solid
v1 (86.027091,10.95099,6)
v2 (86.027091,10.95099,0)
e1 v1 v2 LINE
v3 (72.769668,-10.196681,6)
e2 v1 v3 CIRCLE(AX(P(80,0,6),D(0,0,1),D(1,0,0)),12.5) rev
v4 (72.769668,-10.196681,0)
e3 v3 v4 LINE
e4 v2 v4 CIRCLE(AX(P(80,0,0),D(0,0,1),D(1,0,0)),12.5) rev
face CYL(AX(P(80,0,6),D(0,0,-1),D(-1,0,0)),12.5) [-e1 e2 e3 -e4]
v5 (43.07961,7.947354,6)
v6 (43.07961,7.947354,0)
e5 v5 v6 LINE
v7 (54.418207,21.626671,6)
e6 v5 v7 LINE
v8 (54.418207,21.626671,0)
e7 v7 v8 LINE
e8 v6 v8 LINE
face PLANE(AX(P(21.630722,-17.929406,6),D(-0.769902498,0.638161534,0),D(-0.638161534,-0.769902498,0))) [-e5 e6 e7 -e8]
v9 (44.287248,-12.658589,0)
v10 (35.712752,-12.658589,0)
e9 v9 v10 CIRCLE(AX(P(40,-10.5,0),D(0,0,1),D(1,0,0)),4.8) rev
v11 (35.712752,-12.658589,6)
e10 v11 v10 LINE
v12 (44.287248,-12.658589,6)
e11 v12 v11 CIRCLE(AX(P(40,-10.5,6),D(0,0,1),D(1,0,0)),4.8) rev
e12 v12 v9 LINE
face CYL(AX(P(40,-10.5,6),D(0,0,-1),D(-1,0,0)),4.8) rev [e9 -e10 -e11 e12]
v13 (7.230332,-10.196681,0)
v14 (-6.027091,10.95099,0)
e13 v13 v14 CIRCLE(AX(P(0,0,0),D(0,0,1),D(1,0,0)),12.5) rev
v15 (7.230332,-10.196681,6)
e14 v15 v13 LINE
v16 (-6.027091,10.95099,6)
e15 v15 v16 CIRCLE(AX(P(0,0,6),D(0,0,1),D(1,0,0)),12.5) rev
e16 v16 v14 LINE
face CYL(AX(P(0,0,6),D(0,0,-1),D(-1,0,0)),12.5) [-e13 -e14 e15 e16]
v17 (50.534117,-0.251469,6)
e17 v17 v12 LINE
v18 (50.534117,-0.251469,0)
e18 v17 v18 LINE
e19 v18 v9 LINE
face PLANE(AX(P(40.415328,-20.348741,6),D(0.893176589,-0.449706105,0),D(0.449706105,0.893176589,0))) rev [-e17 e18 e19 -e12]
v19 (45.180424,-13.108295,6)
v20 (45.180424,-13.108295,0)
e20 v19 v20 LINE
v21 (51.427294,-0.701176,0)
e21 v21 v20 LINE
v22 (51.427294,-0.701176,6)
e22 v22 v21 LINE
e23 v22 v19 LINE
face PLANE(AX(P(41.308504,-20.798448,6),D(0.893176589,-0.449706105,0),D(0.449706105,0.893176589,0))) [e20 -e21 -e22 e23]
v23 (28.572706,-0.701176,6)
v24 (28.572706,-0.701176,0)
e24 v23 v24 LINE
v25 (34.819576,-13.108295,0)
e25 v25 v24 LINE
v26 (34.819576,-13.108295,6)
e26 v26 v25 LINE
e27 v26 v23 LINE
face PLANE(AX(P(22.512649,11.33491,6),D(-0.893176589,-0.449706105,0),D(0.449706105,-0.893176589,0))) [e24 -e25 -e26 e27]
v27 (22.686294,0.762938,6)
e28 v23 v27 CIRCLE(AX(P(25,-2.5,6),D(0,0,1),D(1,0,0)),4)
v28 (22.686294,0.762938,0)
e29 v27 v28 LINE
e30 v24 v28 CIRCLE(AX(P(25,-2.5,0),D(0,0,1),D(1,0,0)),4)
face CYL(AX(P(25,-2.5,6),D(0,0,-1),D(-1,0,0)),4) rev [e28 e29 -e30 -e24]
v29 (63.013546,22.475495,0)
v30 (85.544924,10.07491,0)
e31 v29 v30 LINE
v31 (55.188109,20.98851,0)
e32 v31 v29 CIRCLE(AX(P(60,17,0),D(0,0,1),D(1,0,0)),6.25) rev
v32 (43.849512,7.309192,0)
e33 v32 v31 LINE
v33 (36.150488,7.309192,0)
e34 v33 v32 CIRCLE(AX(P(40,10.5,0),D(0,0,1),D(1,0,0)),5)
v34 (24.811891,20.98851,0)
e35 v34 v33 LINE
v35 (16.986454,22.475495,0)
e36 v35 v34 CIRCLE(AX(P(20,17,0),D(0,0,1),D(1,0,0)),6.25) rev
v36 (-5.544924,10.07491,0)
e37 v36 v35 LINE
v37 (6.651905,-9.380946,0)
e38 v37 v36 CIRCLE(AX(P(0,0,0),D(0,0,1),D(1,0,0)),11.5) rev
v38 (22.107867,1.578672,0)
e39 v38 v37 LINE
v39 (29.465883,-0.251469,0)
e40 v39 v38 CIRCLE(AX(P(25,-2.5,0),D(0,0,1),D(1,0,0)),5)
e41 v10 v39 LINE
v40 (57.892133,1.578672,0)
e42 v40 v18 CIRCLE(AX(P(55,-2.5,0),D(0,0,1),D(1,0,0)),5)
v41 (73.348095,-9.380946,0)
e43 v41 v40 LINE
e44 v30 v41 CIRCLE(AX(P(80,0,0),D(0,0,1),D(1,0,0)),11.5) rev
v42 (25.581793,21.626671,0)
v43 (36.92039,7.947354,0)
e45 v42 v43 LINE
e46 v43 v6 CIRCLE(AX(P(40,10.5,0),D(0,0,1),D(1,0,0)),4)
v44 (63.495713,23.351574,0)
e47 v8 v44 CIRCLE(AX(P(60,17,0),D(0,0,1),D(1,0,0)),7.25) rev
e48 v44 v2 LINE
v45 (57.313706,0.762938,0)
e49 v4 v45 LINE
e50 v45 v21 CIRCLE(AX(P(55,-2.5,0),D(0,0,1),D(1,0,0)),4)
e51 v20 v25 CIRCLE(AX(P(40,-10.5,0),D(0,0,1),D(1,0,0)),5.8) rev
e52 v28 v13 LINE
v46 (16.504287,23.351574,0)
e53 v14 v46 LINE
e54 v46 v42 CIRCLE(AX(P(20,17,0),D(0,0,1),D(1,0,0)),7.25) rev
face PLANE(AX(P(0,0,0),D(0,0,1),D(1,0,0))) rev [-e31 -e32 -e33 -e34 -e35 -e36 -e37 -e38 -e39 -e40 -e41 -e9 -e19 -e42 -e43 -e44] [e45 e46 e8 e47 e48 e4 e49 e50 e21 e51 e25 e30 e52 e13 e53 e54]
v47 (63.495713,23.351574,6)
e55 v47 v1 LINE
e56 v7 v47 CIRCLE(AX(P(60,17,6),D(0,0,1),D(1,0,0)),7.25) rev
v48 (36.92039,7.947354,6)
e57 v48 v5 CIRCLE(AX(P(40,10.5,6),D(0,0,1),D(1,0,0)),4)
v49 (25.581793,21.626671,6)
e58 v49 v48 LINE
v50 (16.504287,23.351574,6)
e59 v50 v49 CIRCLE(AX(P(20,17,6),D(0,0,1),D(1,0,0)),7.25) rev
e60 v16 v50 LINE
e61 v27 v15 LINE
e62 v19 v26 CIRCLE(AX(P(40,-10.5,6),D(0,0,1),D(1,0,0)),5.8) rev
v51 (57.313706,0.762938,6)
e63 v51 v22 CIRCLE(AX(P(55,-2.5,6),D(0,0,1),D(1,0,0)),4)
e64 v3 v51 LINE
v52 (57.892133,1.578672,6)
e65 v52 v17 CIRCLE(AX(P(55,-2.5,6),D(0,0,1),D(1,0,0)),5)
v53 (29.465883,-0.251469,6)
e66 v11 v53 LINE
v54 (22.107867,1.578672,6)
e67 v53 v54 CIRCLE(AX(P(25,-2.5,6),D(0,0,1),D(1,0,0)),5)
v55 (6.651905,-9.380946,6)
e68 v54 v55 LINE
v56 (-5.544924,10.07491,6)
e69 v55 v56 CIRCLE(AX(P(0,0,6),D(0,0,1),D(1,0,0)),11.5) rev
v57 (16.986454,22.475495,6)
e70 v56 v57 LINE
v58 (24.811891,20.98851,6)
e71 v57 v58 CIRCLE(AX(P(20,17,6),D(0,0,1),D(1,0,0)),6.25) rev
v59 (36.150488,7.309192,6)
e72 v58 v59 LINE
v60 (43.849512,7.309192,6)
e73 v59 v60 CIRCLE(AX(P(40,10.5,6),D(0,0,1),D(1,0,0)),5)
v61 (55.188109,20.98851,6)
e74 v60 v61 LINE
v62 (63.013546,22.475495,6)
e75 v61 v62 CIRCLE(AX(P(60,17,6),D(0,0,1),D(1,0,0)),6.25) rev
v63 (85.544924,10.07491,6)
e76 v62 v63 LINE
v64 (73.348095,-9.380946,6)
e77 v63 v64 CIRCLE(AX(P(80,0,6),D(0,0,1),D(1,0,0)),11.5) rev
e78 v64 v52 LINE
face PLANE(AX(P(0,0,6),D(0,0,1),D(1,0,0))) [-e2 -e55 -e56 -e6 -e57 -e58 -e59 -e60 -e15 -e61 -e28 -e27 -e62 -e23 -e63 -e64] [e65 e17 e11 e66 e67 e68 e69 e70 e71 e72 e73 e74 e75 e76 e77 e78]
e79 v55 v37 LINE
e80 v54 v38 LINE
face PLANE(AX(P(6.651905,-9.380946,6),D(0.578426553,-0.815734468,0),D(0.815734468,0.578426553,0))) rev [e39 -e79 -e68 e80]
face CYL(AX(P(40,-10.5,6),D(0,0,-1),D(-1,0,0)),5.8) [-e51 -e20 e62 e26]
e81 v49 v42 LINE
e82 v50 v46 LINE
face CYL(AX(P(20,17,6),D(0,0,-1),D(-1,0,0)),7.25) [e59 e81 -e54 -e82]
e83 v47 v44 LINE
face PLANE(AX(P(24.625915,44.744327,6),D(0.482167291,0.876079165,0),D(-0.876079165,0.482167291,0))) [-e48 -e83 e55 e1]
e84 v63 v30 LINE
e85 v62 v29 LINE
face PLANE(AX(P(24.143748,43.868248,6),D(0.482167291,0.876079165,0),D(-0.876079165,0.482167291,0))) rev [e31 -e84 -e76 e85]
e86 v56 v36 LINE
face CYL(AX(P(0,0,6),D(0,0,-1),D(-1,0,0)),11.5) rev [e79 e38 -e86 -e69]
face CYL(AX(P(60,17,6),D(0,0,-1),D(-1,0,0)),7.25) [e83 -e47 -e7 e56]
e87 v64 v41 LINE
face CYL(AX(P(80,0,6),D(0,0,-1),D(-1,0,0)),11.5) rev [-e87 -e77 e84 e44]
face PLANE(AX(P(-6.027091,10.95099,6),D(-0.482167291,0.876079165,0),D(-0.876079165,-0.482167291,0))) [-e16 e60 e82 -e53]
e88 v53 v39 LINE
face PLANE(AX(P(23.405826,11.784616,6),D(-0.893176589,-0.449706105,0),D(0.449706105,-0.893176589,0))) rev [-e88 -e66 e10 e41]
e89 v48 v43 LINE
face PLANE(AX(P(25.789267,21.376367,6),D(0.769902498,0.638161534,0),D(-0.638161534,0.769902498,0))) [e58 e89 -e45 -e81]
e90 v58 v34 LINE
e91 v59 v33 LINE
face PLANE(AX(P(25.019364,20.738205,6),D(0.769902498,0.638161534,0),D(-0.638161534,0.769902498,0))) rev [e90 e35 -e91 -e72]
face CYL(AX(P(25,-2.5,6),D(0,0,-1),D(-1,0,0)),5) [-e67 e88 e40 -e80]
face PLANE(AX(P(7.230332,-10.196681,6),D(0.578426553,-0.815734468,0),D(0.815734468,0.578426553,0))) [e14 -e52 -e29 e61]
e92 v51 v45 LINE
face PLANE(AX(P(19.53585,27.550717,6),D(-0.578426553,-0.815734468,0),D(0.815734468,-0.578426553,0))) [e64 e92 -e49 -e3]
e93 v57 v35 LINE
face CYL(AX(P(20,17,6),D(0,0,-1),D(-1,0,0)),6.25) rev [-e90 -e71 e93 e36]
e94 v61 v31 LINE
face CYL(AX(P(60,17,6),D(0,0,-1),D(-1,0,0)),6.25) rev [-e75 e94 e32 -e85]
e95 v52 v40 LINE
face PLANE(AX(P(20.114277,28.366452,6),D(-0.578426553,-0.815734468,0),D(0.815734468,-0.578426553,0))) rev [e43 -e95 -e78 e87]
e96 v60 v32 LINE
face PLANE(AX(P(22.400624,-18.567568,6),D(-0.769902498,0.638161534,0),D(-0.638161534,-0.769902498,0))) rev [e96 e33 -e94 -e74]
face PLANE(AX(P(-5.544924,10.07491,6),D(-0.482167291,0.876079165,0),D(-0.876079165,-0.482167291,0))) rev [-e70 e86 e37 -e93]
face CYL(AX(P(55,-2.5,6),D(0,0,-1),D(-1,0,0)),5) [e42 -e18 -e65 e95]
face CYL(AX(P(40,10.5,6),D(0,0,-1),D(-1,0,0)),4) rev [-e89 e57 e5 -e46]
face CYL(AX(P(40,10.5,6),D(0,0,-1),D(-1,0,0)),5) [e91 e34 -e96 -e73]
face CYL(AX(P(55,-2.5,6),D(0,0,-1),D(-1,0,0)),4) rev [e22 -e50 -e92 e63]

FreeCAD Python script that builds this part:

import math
import FreeCAD as App
import Part
import Sketcher

doc = App.newDocument("Part")
body = doc.addObject("PartDesign::Body", "Body")

sketch1 = body.newObject("Sketcher::SketchObject", "Sketch")
sketch1.AttachmentSupport = (doc.getObject("XY_Plane"), [""])
sketch1.MapMode = "FlatFace"
sketch1.addGeometry(Part.ArcOfCircle(Part.Circle(App.Vector(0, 0, 0), App.Vector(0, 0, 1), 12.5), math.radians(119), math.radians(305)), False)
sketch1.addGeometry(Part.LineSegment(App.Vector(7.2, -10.2, 0), App.Vector(22.7, 0.8, 0)), False)
sketch1.addGeometry(Part.ArcOfCircle(Part.Circle(App.Vector(25, -2.5, 0), App.Vector(0, 0, 1), 4), math.radians(27), math.radians(125)), False)
sketch1.addGeometry(Part.LineSegment(App.Vector(28.6, -0.7, 0), App.Vector(34.8, -13.1, 0)), False)
sketch1.addGeometry(Part.ArcOfCircle(Part.Circle(App.Vector(40, -10.5, 0), App.Vector(0, 0, 1), 5.8), math.radians(-153), math.radians(-27)), False)
sketch1.addGeometry(Part.LineSegment(App.Vector(45.2, -13.1, 0), App.Vector(51.4, -0.7, 0)), False)
sketch1.addGeometry(Part.ArcOfCircle(Part.Circle(App.Vector(55, -2.5, 0), App.Vector(0, 0, 1), 4), math.radians(55), math.radians(153)), False)
sketch1.addGeometry(Part.LineSegment(App.Vector(57.3, 0.8, 0), App.Vector(72.8, -10.2, 0)), False)
sketch1.addGeometry(Part.ArcOfCircle(Part.Circle(App.Vector(80, 0, 0), App.Vector(0, 0, 1), 12.5), math.radians(-125), math.radians(61)), False)
sketch1.addGeometry(Part.LineSegment(App.Vector(86, 11, 0), App.Vector(63.5, 23.4, 0)), False)
sketch1.addGeometry(Part.ArcOfCircle(Part.Circle(App.Vector(60, 17, 0), App.Vector(0, 0, 1), 7.2), math.radians(61), math.radians(140)), False)
sketch1.addGeometry(Part.LineSegment(App.Vector(54.4, 21.6, 0), App.Vector(43.1, 7.9, 0)), False)
sketch1.addGeometry(Part.ArcOfCircle(Part.Circle(App.Vector(40, 10.5, 0), App.Vector(0, 0, 1), 4), math.radians(-140), math.radians(-40)), False)
sketch1.addGeometry(Part.LineSegment(App.Vector(36.9, 7.9, 0), App.Vector(25.6, 21.6, 0)), False)
sketch1.addGeometry(Part.ArcOfCircle(Part.Circle(App.Vector(20, 17, 0), App.Vector(0, 0, 1), 7.2), math.radians(40), math.radians(119)), False)
sketch1.addGeometry(Part.LineSegment(App.Vector(16.5, 23.4, 0), App.Vector(-6, 11, 0)), False)
sketch1.addGeometry(Part.LineSegment(App.Vector(35.7, -12.7, 0), App.Vector(29.5, -0.3, 0)), False)
sketch1.addGeometry(Part.ArcOfCircle(Part.Circle(App.Vector(25, -2.5, 0), App.Vector(0, 0, 1), 5), math.radians(27), math.radians(125)), False)
sketch1.addGeometry(Part.LineSegment(App.Vector(22.1, 1.6, 0), App.Vector(6.7, -9.4, 0)), False)
sketch1.addGeometry(Part.ArcOfCircle(Part.Circle(App.Vector(0, 0, 0), App.Vector(0, 0, 1), 11.5), math.radians(119), math.radians(305)), False)
sketch1.addGeometry(Part.LineSegment(App.Vector(-5.5, 10.1, 0), App.Vector(17, 22.5, 0)), False)
sketch1.addGeometry(Part.ArcOfCircle(Part.Circle(App.Vector(20, 17, 0), App.Vector(0, 0, 1), 6.2), math.radians(40), math.radians(119)), False)
sketch1.addGeometry(Part.LineSegment(App.Vector(24.8, 21, 0), App.Vector(36.2, 7.3, 0)), False)
sketch1.addGeometry(Part.ArcOfCircle(Part.Circle(App.Vector(40, 10.5, 0), App.Vector(0, 0, 1), 5), math.radians(-140), math.radians(-40)), False)
sketch1.addGeometry(Part.LineSegment(App.Vector(43.8, 7.3, 0), App.Vector(55.2, 21, 0)), False)
sketch1.addGeometry(Part.ArcOfCircle(Part.Circle(App.Vector(60, 17, 0), App.Vector(0, 0, 1), 6.2), math.radians(61), math.radians(140)), False)
sketch1.addGeometry(Part.LineSegment(App.Vector(63, 22.5, 0), App.Vector(85.5, 10.1, 0)), False)
sketch1.addGeometry(Part.ArcOfCircle(Part.Circle(App.Vector(80, 0, 0), App.Vector(0, 0, 1), 11.5), math.radians(-125), math.radians(61)), False)
sketch1.addGeometry(Part.LineSegment(App.Vector(73.3, -9.4, 0), App.Vector(57.9, 1.6, 0)), False)
sketch1.addGeometry(Part.ArcOfCircle(Part.Circle(App.Vector(55, -2.5, 0), App.Vector(0, 0, 1), 5), math.radians(55), math.radians(153)), False)
sketch1.addGeometry(Part.LineSegment(App.Vector(50.5, -0.3, 0), App.Vector(44.3, -12.7, 0)), False)
sketch1.addGeometry(Part.ArcOfCircle(Part.Circle(App.Vector(40, -10.5, 0), App.Vector(0, 0, 1), 4.8), math.radians(-153), math.radians(-27)), False)
sketch1.addConstraint(Sketcher.Constraint("Tangent", 0, 2, 1, 1))
sketch1.addConstraint(Sketcher.Constraint("Tangent", 1, 2, 2, 2))
sketch1.addConstraint(Sketcher.Constraint("Tangent", 2, 1, 3, 1))
sketch1.addConstraint(Sketcher.Constraint("Tangent", 3, 2, 4, 1))
sketch1.addConstraint(Sketcher.Constraint("Tangent", 4, 2, 5, 1))
sketch1.addConstraint(Sketcher.Constraint("Tangent", 5, 2, 6, 2))
sketch1.addConstraint(Sketcher.Constraint("Tangent", 6, 1, 7, 1))
sketch1.addConstraint(Sketcher.Constraint("Tangent", 7, 2, 8, 1))
sketch1.addConstraint(Sketcher.Constraint("Tangent", 8, 2, 9, 1))
sketch1.addConstraint(Sketcher.Constraint("Tangent", 9, 2, 10, 1))
sketch1.addConstraint(Sketcher.Constraint("Tangent", 10, 2, 11, 1))
sketch1.addConstraint(Sketcher.Constraint("Tangent", 11, 2, 12, 2))
sketch1.addConstraint(Sketcher.Constraint("Tangent", 12, 1, 13, 1))
sketch1.addConstraint(Sketcher.Constraint("Tangent", 13, 2, 14, 1))
sketch1.addConstraint(Sketcher.Constraint("Tangent", 14, 2, 15, 1))
sketch1.addConstraint(Sketcher.Constraint("Tangent", 15, 2, 0, 1))
sketch1.addConstraint(Sketcher.Constraint("Tangent", 16, 2, 17, 1))
sketch1.addConstraint(Sketcher.Constraint("Tangent", 17, 2, 18, 1))
sketch1.addConstraint(Sketcher.Constraint("Tangent", 18, 2, 19, 2))
sketch1.addConstraint(Sketcher.Constraint("Tangent", 19, 1, 20, 1))
sketch1.addConstraint(Sketcher.Constraint("Tangent", 20, 2, 21, 2))
sketch1.addConstraint(Sketcher.Constraint("Tangent", 21, 1, 22, 1))
sketch1.addConstraint(Sketcher.Constraint("Tangent", 22, 2, 23, 1))
sketch1.addConstraint(Sketcher.Constraint("Tangent", 23, 2, 24, 1))
sketch1.addConstraint(Sketcher.Constraint("Tangent", 24, 2, 25, 2))
sketch1.addConstraint(Sketcher.Constraint("Tangent", 25, 1, 26, 1))
sketch1.addConstraint(Sketcher.Constraint("Tangent", 26, 2, 27, 2))
sketch1.addConstraint(Sketcher.Constraint("Tangent", 27, 1, 28, 1))
sketch1.addConstraint(Sketcher.Constraint("Tangent", 28, 2, 29, 1))
sketch1.addConstraint(Sketcher.Constraint("Tangent", 29, 2, 30, 1))
sketch1.addConstraint(Sketcher.Constraint("Tangent", 30, 2, 31, 2))
sketch1.addConstraint(Sketcher.Constraint("Tangent", 31, 1, 16, 1))
sketch1.addConstraint(Sketcher.Constraint("Coincident", 0, 3, -1, 1))
sketch1.addConstraint(Sketcher.Constraint("Coincident", 19, 3, -1, 1))
sketch1.addConstraint(Sketcher.Constraint("Coincident", 17, 3, 2, 3))
sketch1.addConstraint(Sketcher.Constraint("Coincident", 21, 3, 14, 3))
sketch1.addConstraint(Sketcher.Constraint("Coincident", 23, 3, 12, 3))
sketch1.addConstraint(Sketcher.Constraint("Coincident", 25, 3, 10, 3))
sketch1.addConstraint(Sketcher.Constraint("Coincident", 27, 3, 8, 3))
sketch1.addConstraint(Sketcher.Constraint("Coincident", 29, 3, 6, 3))
sketch1.addConstraint(Sketcher.Constraint("Coincident", 31, 3, 4, 3))
sketch1.addConstraint(Sketcher.Constraint("Equal", 2, 6))
sketch1.addConstraint(Sketcher.Constraint("Equal", 0, 8))
sketch1.addConstraint(Sketcher.Constraint("Equal", 6, 12))
sketch1.addConstraint(Sketcher.Constraint("Equal", 10, 14))
sketch1.addConstraint(Sketcher.Constraint("Equal", 17, 23))
sketch1.addConstraint(Sketcher.Constraint("Equal", 21, 25))
sketch1.addConstraint(Sketcher.Constraint("Equal", 19, 27))
sketch1.addConstraint(Sketcher.Constraint("Equal", 23, 29))
sketch1.addConstraint(Sketcher.Constraint("Symmetric", 4, 3, 12, 3, -1))
sketch1.addConstraint(Sketcher.Constraint("PointOnObject", 8, 3, -1))
sketch1.addConstraint(Sketcher.Constraint("Parallel", 3, 16))
sketch1.addConstraint(Sketcher.Constraint("Parallel", 1, 18))
sketch1.addConstraint(Sketcher.Constraint("Parallel", 15, 20))
sketch1.addConstraint(Sketcher.Constraint("Horizontal", 2, 3, 6, 3))
sketch1.addConstraint(Sketcher.Constraint("Horizontal", 10, 3, 14, 3))
sketch1.addConstraint(Sketcher.Constraint("Horizontal", 3, 2, 4, 2))
sketch1.addConstraint(Sketcher.Constraint("Horizontal", 1, 2, 6, 1))
sketch1.addConstraint(Sketcher.Constraint("Horizontal", 11, 2, 12, 1))
sketch1.addConstraint(Sketcher.Constraint("Radius", 2, 4.0))
sketch1.addConstraint(Sketcher.Constraint("Radius", 17, 5.0))
sketch1.addConstraint(Sketcher.Constraint("Radius", 0, 12.5))
sketch1.addConstraint(Sketcher.Constraint("Radius", 4, 5.8))
sketch1.addConstraint(Sketcher.Constraint("Radius", 10, 7.25))
sketch1.addConstraint(Sketcher.Constraint("DistanceX", -1, 1, 2, 3, 25.0))
sketch1.addConstraint(Sketcher.Constraint("DistanceX", -1, 1, 4, 3, 40.0))
sketch1.addConstraint(Sketcher.Constraint("DistanceX", -1, 1, 10, 3, 60.0))
sketch1.addConstraint(Sketcher.Constraint("DistanceY", -1, 1, 10, 3, 17.0))
sketch1.addConstraint(Sketcher.Constraint("DistanceY", 4, 3, 2, 3, 8.0))
sketch1.addConstraint(Sketcher.Constraint("DistanceY", 2, 3, 12, 3, 13.0))
pad1 = body.newObject("PartDesign::Pad", "Pad")
pad1.Profile = sketch1
pad1.Length = 6

doc.recompute()
